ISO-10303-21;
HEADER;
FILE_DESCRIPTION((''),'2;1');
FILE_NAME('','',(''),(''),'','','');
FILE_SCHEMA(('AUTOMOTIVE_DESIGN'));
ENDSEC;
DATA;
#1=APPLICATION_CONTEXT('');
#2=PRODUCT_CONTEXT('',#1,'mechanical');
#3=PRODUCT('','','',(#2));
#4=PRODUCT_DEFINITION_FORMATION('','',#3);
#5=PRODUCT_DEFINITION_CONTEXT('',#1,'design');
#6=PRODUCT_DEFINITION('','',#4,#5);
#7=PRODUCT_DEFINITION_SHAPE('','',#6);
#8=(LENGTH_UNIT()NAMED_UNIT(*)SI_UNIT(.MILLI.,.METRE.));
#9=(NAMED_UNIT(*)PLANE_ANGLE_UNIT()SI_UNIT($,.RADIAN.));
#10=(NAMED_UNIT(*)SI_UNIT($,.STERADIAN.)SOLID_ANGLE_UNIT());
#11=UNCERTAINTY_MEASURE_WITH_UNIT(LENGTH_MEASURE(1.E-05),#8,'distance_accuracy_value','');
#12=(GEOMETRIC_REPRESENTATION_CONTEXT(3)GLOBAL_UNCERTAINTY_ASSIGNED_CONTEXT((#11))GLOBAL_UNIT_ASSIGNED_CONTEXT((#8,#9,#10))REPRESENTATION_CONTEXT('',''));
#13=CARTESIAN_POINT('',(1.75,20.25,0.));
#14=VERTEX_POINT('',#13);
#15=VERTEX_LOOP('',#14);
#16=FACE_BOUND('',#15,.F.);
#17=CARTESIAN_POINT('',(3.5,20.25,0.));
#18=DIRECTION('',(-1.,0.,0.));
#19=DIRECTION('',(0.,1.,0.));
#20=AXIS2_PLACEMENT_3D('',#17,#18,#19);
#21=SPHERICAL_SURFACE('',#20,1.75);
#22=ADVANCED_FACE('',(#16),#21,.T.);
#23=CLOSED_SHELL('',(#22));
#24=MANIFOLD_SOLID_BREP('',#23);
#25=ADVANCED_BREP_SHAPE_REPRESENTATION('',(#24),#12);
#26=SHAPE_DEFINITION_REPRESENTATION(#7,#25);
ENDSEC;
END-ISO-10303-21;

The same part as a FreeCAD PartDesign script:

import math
import FreeCAD as App
import Part
import Sketcher

V = App.Vector

doc = App.newDocument("Part")
body = doc.addObject("PartDesign::Body", "Body")

# Sketch on XY plane
sketch1 = body.newObject("Sketcher::SketchObject", "Sketch")
sketch1.AttachmentSupport = (doc.getObject("XY_Plane"), [""])
sketch1.MapMode = "FlatFace"
sketch1.addGeometry([
    Part.LineSegment(V(1.8, 20.2, 0), V(5.2, 20.2, 0)),
    Part.ArcOfCircle(Part.Circle(V(3.5, 20.2, 0), V(0, 0, 1), 1.8), math.radians(0), math.radians(180)),
], False)
sketch1.addGeometry(Part.LineSegment(V(1.8, 20.2, 0), V(5.2, 20.2, 0)), True)  # axis
sketch1.addConstraint([
    Sketcher.Constraint("Coincident", 0, 1, 1, 2),
    Sketcher.Constraint("Coincident", 1, 1, 0, 2),
    Sketcher.Constraint("Horizontal", 0),
    Sketcher.Constraint("Horizontal", 2),
    Sketcher.Constraint("Coincident", 2, 1, 0, 1),
    Sketcher.Constraint("Horizontal", 1, 3, 0, 1),
    Sketcher.Constraint("Equal", 0, 2),
    Sketcher.Constraint("Radius", 1, 1.75),
    Sketcher.Constraint("DistanceX", -1, 1, 1, 3, 3.5),
    Sketcher.Constraint("DistanceY", -1, 1, 1, 3, 20.25),
])
revolution = body.newObject("PartDesign::Revolution", "Revolution")
revolution.Profile = sketch1
revolution.ReferenceAxis = (sketch1, ["Axis0"])
revolution.Angle = 360

doc.recompute()
